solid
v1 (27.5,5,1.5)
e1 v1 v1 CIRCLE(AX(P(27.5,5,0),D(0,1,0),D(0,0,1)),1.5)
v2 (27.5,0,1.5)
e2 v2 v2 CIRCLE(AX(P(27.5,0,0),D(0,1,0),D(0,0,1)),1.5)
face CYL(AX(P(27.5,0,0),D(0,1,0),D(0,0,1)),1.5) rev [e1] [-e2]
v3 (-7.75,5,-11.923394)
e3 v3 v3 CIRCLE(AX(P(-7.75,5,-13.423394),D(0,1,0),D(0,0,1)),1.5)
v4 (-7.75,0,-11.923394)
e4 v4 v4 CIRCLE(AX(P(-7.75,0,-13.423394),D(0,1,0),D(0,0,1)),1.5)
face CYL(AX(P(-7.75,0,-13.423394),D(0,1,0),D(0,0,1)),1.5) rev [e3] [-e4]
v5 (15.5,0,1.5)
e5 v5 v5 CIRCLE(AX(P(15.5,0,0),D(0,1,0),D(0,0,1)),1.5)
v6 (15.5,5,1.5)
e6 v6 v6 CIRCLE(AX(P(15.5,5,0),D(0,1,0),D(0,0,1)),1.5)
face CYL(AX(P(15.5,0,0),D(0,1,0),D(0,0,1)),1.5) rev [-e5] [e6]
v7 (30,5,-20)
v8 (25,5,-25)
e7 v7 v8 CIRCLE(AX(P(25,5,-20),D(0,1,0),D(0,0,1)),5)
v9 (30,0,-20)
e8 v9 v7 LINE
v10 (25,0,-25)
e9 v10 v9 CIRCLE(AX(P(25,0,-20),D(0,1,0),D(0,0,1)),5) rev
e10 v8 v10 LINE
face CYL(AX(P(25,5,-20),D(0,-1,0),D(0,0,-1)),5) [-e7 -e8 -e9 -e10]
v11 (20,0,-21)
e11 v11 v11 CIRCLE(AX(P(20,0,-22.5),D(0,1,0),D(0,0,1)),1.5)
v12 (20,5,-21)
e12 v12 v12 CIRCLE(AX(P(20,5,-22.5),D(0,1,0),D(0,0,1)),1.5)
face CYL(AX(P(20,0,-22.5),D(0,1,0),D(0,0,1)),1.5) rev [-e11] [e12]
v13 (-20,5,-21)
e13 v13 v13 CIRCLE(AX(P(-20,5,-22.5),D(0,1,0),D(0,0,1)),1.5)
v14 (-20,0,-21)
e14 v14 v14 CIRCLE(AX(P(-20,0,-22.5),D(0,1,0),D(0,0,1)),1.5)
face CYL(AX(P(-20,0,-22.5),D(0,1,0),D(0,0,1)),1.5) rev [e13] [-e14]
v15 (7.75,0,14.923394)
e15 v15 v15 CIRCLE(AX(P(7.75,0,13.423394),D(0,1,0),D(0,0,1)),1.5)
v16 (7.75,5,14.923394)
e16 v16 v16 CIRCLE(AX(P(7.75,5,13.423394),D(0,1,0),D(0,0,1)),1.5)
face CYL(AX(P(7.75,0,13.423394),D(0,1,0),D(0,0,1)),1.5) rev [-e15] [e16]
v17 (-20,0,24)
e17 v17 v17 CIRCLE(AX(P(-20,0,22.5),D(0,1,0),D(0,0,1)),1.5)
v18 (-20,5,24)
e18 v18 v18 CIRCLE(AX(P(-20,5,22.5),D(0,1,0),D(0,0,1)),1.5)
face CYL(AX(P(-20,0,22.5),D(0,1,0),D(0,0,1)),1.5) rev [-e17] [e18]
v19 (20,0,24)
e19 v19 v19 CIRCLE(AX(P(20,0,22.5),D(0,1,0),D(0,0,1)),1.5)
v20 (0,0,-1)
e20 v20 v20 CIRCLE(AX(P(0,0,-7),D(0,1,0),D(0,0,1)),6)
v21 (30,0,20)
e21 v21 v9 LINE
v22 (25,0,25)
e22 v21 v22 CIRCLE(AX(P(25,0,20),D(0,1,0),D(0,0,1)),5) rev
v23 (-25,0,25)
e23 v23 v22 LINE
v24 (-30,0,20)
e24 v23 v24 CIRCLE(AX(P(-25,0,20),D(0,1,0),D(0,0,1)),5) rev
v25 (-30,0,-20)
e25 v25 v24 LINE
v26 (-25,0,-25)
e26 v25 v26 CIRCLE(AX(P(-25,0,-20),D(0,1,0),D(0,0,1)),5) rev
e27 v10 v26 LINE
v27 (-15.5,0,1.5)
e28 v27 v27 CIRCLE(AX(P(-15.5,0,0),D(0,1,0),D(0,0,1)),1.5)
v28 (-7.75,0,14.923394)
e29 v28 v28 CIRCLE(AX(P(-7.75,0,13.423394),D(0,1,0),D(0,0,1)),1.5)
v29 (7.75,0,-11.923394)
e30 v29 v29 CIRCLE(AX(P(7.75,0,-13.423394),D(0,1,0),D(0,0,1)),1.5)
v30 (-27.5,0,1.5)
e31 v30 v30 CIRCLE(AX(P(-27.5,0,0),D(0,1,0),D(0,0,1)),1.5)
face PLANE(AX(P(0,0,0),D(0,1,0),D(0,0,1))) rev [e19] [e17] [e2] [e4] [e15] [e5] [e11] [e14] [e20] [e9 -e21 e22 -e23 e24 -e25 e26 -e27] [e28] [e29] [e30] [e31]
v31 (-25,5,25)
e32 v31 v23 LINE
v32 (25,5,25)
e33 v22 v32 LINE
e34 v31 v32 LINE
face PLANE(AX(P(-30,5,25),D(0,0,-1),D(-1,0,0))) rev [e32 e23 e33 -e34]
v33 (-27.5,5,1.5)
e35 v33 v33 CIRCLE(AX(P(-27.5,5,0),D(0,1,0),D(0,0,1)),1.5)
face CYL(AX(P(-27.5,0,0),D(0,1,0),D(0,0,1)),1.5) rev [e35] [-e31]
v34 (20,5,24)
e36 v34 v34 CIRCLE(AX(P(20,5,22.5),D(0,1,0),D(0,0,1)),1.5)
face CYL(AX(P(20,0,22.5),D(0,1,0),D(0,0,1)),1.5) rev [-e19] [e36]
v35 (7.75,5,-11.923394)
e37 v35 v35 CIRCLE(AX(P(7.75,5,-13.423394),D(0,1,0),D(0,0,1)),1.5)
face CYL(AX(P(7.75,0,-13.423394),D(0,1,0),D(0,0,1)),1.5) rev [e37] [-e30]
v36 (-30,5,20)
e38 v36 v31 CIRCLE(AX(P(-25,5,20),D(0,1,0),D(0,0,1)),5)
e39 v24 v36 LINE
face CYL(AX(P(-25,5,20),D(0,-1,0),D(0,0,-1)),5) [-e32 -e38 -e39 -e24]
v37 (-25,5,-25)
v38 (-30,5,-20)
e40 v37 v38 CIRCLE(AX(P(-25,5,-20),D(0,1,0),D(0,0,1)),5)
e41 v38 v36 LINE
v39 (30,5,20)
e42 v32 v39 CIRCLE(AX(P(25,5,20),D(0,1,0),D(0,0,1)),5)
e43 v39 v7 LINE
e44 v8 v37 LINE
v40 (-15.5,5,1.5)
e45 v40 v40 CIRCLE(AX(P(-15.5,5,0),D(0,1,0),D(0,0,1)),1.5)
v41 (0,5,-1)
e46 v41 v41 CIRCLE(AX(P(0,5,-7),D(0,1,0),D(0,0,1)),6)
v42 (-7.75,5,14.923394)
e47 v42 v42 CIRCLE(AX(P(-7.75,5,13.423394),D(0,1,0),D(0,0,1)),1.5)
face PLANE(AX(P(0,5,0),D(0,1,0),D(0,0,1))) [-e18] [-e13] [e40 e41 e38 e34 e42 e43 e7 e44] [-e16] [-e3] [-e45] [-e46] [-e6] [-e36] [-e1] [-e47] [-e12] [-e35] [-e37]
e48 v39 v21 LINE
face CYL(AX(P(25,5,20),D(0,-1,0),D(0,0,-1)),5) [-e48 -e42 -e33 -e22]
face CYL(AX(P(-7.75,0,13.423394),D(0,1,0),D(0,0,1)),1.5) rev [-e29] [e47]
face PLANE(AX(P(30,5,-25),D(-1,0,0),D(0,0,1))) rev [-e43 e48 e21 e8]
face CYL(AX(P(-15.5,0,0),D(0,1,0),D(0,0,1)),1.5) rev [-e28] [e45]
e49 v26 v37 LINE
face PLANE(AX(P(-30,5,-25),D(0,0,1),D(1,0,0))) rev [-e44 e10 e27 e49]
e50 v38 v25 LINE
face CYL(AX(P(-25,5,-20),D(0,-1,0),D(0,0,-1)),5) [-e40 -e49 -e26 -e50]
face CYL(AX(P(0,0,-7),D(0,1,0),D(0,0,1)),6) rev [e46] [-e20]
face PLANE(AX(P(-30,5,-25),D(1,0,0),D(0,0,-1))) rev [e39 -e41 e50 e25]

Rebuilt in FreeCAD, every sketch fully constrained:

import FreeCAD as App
import Part
import Sketcher
from FreeCAD import Vector
Q = App.Units.Quantity


def edges_at(feature, points):
    """Names of the edges that pass closest to the given points."""
    edges = feature.Shape.Edges
    near = lambda p: min(range(len(edges)), key=lambda i: edges[i].distToShape(Part.Vertex(*p))[0])
    return sorted({f"Edge{near(p) + 1}" for p in points})

doc = App.newDocument("Part")
params = doc.addObject("Spreadsheet::Sheet", "Params")
for row, (alias, value) in enumerate([
    ("sketch1_width", "60 mm"),
    ("sketch1_height", "50 mm"),
    ("pad1_length", "5 mm"),
    ("sketch2_diameter", "12 mm"),
    ("sketch2_diameter2", "3 mm"),
    ("pocket1_length", "5 mm"),
    ("fillet_radius", "5 mm"),
], start=1):
    params.set(f"A{row}", alias)
    params.set(f"B{row}", "=" + value)
    params.setAlias(f"B{row}", alias)

body = doc.addObject("PartDesign::Body", "Body")

sketch1 = body.newObject("Sketcher::SketchObject", "Sketch")
sketch1.AttachmentSupport = (doc.getObject("XZ_Plane"), [""])
sketch1.MapMode = "FlatFace"
sketch1.addGeometry([
    Part.LineSegment(Vector(-30, -25, 0), Vector(-30, 25, 0)),
    Part.LineSegment(Vector(-30, 25, 0), Vector(30, 25, 0)),
    Part.LineSegment(Vector(30, 25, 0), Vector(30, -25, 0)),
    Part.LineSegment(Vector(30, -25, 0), Vector(-30, -25, 0)),
], False)
sketch1.addConstraint([
    Sketcher.Constraint("Coincident", 0, 2, 1, 1),
    Sketcher.Constraint("Coincident", 1, 2, 2, 1),
    Sketcher.Constraint("Coincident", 2, 2, 3, 1),
    Sketcher.Constraint("Coincident", 3, 2, 0, 1),
    Sketcher.Constraint("Vertical", 0),
    Sketcher.Constraint("Horizontal", 1),
    Sketcher.Constraint("Vertical", 2),
    Sketcher.Constraint("Horizontal", 3),
    Sketcher.Constraint("Symmetric", 0, 2, 2, 2, -1, 1),
    Sketcher.Constraint("DistanceX", 1, 1, 1, 2, Q("60 mm")),
    Sketcher.Constraint("DistanceY", 0, 1, 0, 2, Q("50 mm")),
])
sketch1.setExpression("Constraints[9]", "Params.sketch1_width")
sketch1.setExpression("Constraints[10]", "Params.sketch1_height")
pad1 = body.newObject("PartDesign::Pad", "Pad")
pad1.Profile = sketch1
pad1.setExpression("Length", "Params.pad1_length")
pad1.Reversed = True

sketch2 = body.newObject("Sketcher::SketchObject", "Sketch001")
sketch2.AttachmentSupport = (doc.getObject("XZ_Plane"), [""])
sketch2.MapMode = "FlatFace"
sketch2.AttachmentOffset = App.Placement(Vector(0, 0, -5), App.Rotation())
sketch2.addGeometry([
    Part.Circle(Vector(0, -7, 0), Vector(0, 0, 1), 6),
    Part.Circle(Vector(-7.75, -13.423394, 0), Vector(0, 0, 1), 1.5),
    Part.Circle(Vector(-15.5, 0, 0), Vector(0, 0, 1), 1.5),
    Part.Circle(Vector(-7.75, 13.423394, 0), Vector(0, 0, 1), 1.5),
    Part.Circle(Vector(7.75, 13.423394, 0), Vector(0, 0, 1), 1.5),
    Part.Circle(Vector(15.5, 0, 0), Vector(0, 0, 1), 1.5),
    Part.Circle(Vector(7.75, -13.423394, 0), Vector(0, 0, 1), 1.5),
    Part.Circle(Vector(-20, -22.5, 0), Vector(0, 0, 1), 1.5),
    Part.Circle(Vector(20, -22.5, 0), Vector(0, 0, 1), 1.5),
    Part.Circle(Vector(20, 22.5, 0), Vector(0, 0, 1), 1.5),
    Part.Circle(Vector(-20, 22.5, 0), Vector(0, 0, 1), 1.5),
    Part.Circle(Vector(-27.5, 0, 0), Vector(0, 0, 1), 1.5),
    Part.Circle(Vector(27.5, 0, 0), Vector(0, 0, 1), 1.5),
], False)
sketch2.addConstraint([
    Sketcher.Constraint("Equal", 1, 2),
    Sketcher.Constraint("Equal", 2, 3),
    Sketcher.Constraint("Equal", 3, 4),
    Sketcher.Constraint("Equal", 4, 5),
    Sketcher.Constraint("Equal", 5, 6),
    Sketcher.Constraint("Equal", 6, 7),
    Sketcher.Constraint("Equal", 7, 8),
    Sketcher.Constraint("Equal", 8, 9),
    Sketcher.Constraint("Equal", 9, 10),
    Sketcher.Constraint("Equal", 10, 11),
    Sketcher.Constraint("Equal", 11, 12),
    Sketcher.Constraint("Symmetric", 1, 3, 4, 3, -1, 1),
    Sketcher.Constraint("Symmetric", 2, 3, 5, 3, -1, 1),
    Sketcher.Constraint("Symmetric", 3, 3, 6, 3, -1, 1),
    Sketcher.Constraint("Symmetric", 7, 3, 9, 3, -1, 1),
    Sketcher.Constraint("Symmetric", 8, 3, 10, 3, -1, 1),
    Sketcher.Constraint("Symmetric", 11, 3, 12, 3, -1, 1),
    Sketcher.Constraint("Symmetric", 3, 3, 4, 3, -2),
    Sketcher.Constraint("Symmetric", 7, 3, 8, 3, -2),
    Sketcher.Constraint("PointOnObject", 0, 3, -2),
    Sketcher.Constraint("PointOnObject", 2, 3, -1),
    Sketcher.Constraint("PointOnObject", 11, 3, -1),
    Sketcher.Constraint("Diameter", 0, Q("12 mm")),
    Sketcher.Constraint("Diameter", 1, Q("3 mm")),
    Sketcher.Constraint("DistanceY", 0, 3, -1, 1, Q("7 mm")),
    Sketcher.Constraint("DistanceX", 7, 3, -1, 1, Q("20 mm")),
    Sketcher.Constraint("DistanceX", 2, 3, 5, 3, Q("31 mm")),
    Sketcher.Constraint("DistanceX", 11, 3, 2, 3, Q("12 mm")),
    Sketcher.Constraint("DistanceY", 7, 3, -1, 1, Q("22.5 mm")),
    Sketcher.Constraint("DistanceX", 3, 3, 4, 3, Q("15.5 mm")),
    Sketcher.Constraint("DistanceY", 1, 3, -1, 1, Q("13.423394 mm")),
])
sketch2.setExpression("Constraints[22]", "Params.sketch2_diameter")
sketch2.setExpression("Constraints[23]", "Params.sketch2_diameter2")
pocket1 = body.newObject("PartDesign::Pocket", "Pocket")
pocket1.Profile = sketch2
pocket1.setExpression("Length", "Params.pocket1_length")
pocket1.Reversed = True
doc.recompute()

fillet = body.newObject("PartDesign::Fillet", "Fillet")
fillet.Base = (pocket1, edges_at(pocket1, [
    (30, 2.5, 25),
    (-30, 2.5, 25),
    (-30, 2.5, -25),
    (30, 2.5, -25),
]))
fillet.setExpression("Radius", "Params.fillet_radius")

doc.recompute()
